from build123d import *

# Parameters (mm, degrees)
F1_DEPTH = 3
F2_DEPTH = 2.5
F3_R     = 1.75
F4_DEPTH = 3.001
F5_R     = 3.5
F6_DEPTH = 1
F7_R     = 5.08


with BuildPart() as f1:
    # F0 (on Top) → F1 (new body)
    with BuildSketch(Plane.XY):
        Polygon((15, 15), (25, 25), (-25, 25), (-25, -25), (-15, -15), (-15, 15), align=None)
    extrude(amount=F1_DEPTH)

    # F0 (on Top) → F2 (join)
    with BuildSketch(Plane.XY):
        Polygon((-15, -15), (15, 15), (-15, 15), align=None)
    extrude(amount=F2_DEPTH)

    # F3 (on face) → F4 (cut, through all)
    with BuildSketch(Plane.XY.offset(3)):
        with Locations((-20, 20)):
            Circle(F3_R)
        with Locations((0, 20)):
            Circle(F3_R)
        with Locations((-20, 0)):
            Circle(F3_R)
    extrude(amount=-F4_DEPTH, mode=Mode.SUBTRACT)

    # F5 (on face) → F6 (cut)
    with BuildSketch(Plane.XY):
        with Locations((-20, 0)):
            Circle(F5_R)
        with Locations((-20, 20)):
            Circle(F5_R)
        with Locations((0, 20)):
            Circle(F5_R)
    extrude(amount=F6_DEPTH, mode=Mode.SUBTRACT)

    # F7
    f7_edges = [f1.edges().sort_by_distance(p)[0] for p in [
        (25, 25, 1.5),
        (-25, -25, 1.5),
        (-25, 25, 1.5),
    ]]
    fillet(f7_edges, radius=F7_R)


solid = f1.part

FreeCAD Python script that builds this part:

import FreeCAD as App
import Part
import Sketcher


def edges_at(feature, points):
    """Names of the edges that pass closest to the given points."""
    edges = feature.Shape.Edges
    near = lambda p: min(range(len(edges)), key=lambda i: edges[i].distToShape(Part.Vertex(*p))[0])
    return sorted({f"Edge{near(p) + 1}" for p in points})

doc = App.newDocument("Part")
body = doc.addObject("PartDesign::Body", "Body")

# Sketch on XY plane
sketch1 = body.newObject("Sketcher::SketchObject", "Sketch")
sketch1.AttachmentSupport = (doc.getObject("XY_Plane"), [""])
sketch1.MapMode = "FlatFace"
sketch1.addGeometry(Part.LineSegment(App.Vector(15, 15, 0), App.Vector(25, 25, 0)), False)
sketch1.addGeometry(Part.LineSegment(App.Vector(25, 25, 0), App.Vector(-25, 25, 0)), False)
sketch1.addGeometry(Part.LineSegment(App.Vector(-25, 25, 0), App.Vector(-25, -25, 0)), False)
sketch1.addGeometry(Part.LineSegment(App.Vector(-25, -25, 0), App.Vector(-15, -15, 0)), False)
sketch1.addGeometry(Part.LineSegment(App.Vector(-15, -15, 0), App.Vector(-15, 15, 0)), False)
sketch1.addGeometry(Part.LineSegment(App.Vector(-15, 15, 0), App.Vector(15, 15, 0)), False)
sketch1.addConstraint(Sketcher.Constraint("Coincident", 0, 2, 1, 1))
sketch1.addConstraint(Sketcher.Constraint("Coincident", 1, 2, 2, 1))
sketch1.addConstraint(Sketcher.Constraint("Coincident", 2, 2, 3, 1))
sketch1.addConstraint(Sketcher.Constraint("Coincident", 3, 2, 4, 1))
sketch1.addConstraint(Sketcher.Constraint("Coincident", 4, 2, 5, 1))
sketch1.addConstraint(Sketcher.Constraint("Coincident", 5, 2, 0, 1))
sketch1.addConstraint(Sketcher.Constraint("Horizontal", 1))
sketch1.addConstraint(Sketcher.Constraint("Vertical", 2))
sketch1.addConstraint(Sketcher.Constraint("Vertical", 4))
sketch1.addConstraint(Sketcher.Constraint("Horizontal", 5))
sketch1.addConstraint(Sketcher.Constraint("Symmetric", 0, 2, 2, 2, -1, 1))
sketch1.addConstraint(Sketcher.Constraint("Symmetric", 3, 2, 5, 2, -1, 1))
sketch1.addConstraint(Sketcher.Constraint("Equal", 1, 2))
sketch1.addConstraint(Sketcher.Constraint("Equal", 5, 4))
sketch1.addConstraint(Sketcher.Constraint("DistanceX", 1, 2, 1, 1, 50.0))
sketch1.addConstraint(Sketcher.Constraint("DistanceX", 5, 1, 5, 2, 30.0))
pad1 = body.newObject("PartDesign::Pad", "Pad")
pad1.Profile = sketch1
pad1.Length = 3

# Sketch on XY plane
sketch2 = body.newObject("Sketcher::SketchObject", "Sketch001")
sketch2.AttachmentSupport = (doc.getObject("XY_Plane"), [""])
sketch2.MapMode = "FlatFace"
sketch2.addGeometry(Part.LineSegment(App.Vector(-15, -15, 0), App.Vector(15, 15, 0)), False)
sketch2.addGeometry(Part.LineSegment(App.Vector(15, 15, 0), App.Vector(-15, 15, 0)), False)
sketch2.addGeometry(Part.LineSegment(App.Vector(-15, 15, 0), App.Vector(-15, -15, 0)), False)
sketch2.addConstraint(Sketcher.Constraint("Coincident", 0, 2, 1, 1))
sketch2.addConstraint(Sketcher.Constraint("Coincident", 1, 2, 2, 1))
sketch2.addConstraint(Sketcher.Constraint("Coincident", 2, 2, 0, 1))
sketch2.addConstraint(Sketcher.Constraint("Horizontal", 1))
sketch2.addConstraint(Sketcher.Constraint("Vertical", 2))
sketch2.addConstraint(Sketcher.Constraint("Symmetric", 0, 2, 2, 2, -1, 1))
sketch2.addConstraint(Sketcher.Constraint("Equal", 1, 2))
sketch2.addConstraint(Sketcher.Constraint("DistanceX", 1, 2, 1, 1, 30.0))
pad2 = body.newObject("PartDesign::Pad", "Pad001")
pad2.Profile = sketch2
pad2.Length = 2.5

# Sketch on XY plane
sketch3 = body.newObject("Sketcher::SketchObject", "Sketch002")
sketch3.AttachmentSupport = (doc.getObject("XY_Plane"), [""])
sketch3.MapMode = "FlatFace"
sketch3.AttachmentOffset = App.Placement(App.Vector(0, 0, 3), App.Rotation())
sketch3.addGeometry(Part.Circle(App.Vector(-20, 20, 0), App.Vector(0, 0, 1), 1.75), False)
sketch3.addGeometry(Part.Circle(App.Vector(0, 20, 0), App.Vector(0, 0, 1), 1.75), False)
sketch3.addGeometry(Part.Circle(App.Vector(-20, 0, 0), App.Vector(0, 0, 1), 1.75), False)
sketch3.addConstraint(Sketcher.Constraint("Equal", 0, 1))
sketch3.addConstraint(Sketcher.Constraint("Equal", 1, 2))
sketch3.addConstraint(Sketcher.Constraint("PointOnObject", 1, 3, -2))
sketch3.addConstraint(Sketcher.Constraint("PointOnObject", 2, 3, -1))
sketch3.addConstraint(Sketcher.Constraint("Horizontal", 0, 3, 1, 3))
sketch3.addConstraint(Sketcher.Constraint("Vertical", 0, 3, 2, 3))
sketch3.addConstraint(Sketcher.Constraint("Diameter", 0, 3.5))
sketch3.addConstraint(Sketcher.Constraint("DistanceX", 0, 3, -1, 1, 20.0))
sketch3.addConstraint(Sketcher.Constraint("DistanceY", -1, 1, 0, 3, 20.0))
pocket1 = body.newObject("PartDesign::Pocket", "Pocket")
pocket1.Profile = sketch3
pocket1.Type = "ThroughAll"

# Sketch on XY plane
sketch4 = body.newObject("Sketcher::SketchObject", "Sketch003")
sketch4.AttachmentSupport = (doc.getObject("XY_Plane"), [""])
sketch4.MapMode = "FlatFace"
sketch4.addGeometry(Part.Circle(App.Vector(-20, 0, 0), App.Vector(0, 0, 1), 3.5), False)
sketch4.addGeometry(Part.Circle(App.Vector(-20, 20, 0), App.Vector(0, 0, 1), 3.5), False)
sketch4.addGeometry(Part.Circle(App.Vector(0, 20, 0), App.Vector(0, 0, 1), 3.5), False)
sketch4.addConstraint(Sketcher.Constraint("Equal", 0, 1))
sketch4.addConstraint(Sketcher.Constraint("Equal", 1, 2))
sketch4.addConstraint(Sketcher.Constraint("PointOnObject", 0, 3, -1))
sketch4.addConstraint(Sketcher.Constraint("PointOnObject", 2, 3, -2))
sketch4.addConstraint(Sketcher.Constraint("Horizontal", 1, 3, 2, 3))
sketch4.addConstraint(Sketcher.Constraint("Vertical", 0, 3, 1, 3))
sketch4.addConstraint(Sketcher.Constraint("Diameter", 0, 7.0))
sketch4.addConstraint(Sketcher.Constraint("DistanceX", 0, 3, -1, 1, 20.0))
sketch4.addConstraint(Sketcher.Constraint("DistanceY", -1, 1, 1, 3, 20.0))
pocket2 = body.newObject("PartDesign::Pocket", "Pocket001")
pocket2.Profile = sketch4
pocket2.Length = 1
pocket2.Reversed = True
doc.recompute()

fillet = body.newObject("PartDesign::Fillet", "Fillet")
fillet.Base = (pocket2, edges_at(pocket2, [(25, 25, 1.5), (-25, -25, 1.5), (-25, 25, 1.5)]))
fillet.Radius = 5.08

doc.recompute()
